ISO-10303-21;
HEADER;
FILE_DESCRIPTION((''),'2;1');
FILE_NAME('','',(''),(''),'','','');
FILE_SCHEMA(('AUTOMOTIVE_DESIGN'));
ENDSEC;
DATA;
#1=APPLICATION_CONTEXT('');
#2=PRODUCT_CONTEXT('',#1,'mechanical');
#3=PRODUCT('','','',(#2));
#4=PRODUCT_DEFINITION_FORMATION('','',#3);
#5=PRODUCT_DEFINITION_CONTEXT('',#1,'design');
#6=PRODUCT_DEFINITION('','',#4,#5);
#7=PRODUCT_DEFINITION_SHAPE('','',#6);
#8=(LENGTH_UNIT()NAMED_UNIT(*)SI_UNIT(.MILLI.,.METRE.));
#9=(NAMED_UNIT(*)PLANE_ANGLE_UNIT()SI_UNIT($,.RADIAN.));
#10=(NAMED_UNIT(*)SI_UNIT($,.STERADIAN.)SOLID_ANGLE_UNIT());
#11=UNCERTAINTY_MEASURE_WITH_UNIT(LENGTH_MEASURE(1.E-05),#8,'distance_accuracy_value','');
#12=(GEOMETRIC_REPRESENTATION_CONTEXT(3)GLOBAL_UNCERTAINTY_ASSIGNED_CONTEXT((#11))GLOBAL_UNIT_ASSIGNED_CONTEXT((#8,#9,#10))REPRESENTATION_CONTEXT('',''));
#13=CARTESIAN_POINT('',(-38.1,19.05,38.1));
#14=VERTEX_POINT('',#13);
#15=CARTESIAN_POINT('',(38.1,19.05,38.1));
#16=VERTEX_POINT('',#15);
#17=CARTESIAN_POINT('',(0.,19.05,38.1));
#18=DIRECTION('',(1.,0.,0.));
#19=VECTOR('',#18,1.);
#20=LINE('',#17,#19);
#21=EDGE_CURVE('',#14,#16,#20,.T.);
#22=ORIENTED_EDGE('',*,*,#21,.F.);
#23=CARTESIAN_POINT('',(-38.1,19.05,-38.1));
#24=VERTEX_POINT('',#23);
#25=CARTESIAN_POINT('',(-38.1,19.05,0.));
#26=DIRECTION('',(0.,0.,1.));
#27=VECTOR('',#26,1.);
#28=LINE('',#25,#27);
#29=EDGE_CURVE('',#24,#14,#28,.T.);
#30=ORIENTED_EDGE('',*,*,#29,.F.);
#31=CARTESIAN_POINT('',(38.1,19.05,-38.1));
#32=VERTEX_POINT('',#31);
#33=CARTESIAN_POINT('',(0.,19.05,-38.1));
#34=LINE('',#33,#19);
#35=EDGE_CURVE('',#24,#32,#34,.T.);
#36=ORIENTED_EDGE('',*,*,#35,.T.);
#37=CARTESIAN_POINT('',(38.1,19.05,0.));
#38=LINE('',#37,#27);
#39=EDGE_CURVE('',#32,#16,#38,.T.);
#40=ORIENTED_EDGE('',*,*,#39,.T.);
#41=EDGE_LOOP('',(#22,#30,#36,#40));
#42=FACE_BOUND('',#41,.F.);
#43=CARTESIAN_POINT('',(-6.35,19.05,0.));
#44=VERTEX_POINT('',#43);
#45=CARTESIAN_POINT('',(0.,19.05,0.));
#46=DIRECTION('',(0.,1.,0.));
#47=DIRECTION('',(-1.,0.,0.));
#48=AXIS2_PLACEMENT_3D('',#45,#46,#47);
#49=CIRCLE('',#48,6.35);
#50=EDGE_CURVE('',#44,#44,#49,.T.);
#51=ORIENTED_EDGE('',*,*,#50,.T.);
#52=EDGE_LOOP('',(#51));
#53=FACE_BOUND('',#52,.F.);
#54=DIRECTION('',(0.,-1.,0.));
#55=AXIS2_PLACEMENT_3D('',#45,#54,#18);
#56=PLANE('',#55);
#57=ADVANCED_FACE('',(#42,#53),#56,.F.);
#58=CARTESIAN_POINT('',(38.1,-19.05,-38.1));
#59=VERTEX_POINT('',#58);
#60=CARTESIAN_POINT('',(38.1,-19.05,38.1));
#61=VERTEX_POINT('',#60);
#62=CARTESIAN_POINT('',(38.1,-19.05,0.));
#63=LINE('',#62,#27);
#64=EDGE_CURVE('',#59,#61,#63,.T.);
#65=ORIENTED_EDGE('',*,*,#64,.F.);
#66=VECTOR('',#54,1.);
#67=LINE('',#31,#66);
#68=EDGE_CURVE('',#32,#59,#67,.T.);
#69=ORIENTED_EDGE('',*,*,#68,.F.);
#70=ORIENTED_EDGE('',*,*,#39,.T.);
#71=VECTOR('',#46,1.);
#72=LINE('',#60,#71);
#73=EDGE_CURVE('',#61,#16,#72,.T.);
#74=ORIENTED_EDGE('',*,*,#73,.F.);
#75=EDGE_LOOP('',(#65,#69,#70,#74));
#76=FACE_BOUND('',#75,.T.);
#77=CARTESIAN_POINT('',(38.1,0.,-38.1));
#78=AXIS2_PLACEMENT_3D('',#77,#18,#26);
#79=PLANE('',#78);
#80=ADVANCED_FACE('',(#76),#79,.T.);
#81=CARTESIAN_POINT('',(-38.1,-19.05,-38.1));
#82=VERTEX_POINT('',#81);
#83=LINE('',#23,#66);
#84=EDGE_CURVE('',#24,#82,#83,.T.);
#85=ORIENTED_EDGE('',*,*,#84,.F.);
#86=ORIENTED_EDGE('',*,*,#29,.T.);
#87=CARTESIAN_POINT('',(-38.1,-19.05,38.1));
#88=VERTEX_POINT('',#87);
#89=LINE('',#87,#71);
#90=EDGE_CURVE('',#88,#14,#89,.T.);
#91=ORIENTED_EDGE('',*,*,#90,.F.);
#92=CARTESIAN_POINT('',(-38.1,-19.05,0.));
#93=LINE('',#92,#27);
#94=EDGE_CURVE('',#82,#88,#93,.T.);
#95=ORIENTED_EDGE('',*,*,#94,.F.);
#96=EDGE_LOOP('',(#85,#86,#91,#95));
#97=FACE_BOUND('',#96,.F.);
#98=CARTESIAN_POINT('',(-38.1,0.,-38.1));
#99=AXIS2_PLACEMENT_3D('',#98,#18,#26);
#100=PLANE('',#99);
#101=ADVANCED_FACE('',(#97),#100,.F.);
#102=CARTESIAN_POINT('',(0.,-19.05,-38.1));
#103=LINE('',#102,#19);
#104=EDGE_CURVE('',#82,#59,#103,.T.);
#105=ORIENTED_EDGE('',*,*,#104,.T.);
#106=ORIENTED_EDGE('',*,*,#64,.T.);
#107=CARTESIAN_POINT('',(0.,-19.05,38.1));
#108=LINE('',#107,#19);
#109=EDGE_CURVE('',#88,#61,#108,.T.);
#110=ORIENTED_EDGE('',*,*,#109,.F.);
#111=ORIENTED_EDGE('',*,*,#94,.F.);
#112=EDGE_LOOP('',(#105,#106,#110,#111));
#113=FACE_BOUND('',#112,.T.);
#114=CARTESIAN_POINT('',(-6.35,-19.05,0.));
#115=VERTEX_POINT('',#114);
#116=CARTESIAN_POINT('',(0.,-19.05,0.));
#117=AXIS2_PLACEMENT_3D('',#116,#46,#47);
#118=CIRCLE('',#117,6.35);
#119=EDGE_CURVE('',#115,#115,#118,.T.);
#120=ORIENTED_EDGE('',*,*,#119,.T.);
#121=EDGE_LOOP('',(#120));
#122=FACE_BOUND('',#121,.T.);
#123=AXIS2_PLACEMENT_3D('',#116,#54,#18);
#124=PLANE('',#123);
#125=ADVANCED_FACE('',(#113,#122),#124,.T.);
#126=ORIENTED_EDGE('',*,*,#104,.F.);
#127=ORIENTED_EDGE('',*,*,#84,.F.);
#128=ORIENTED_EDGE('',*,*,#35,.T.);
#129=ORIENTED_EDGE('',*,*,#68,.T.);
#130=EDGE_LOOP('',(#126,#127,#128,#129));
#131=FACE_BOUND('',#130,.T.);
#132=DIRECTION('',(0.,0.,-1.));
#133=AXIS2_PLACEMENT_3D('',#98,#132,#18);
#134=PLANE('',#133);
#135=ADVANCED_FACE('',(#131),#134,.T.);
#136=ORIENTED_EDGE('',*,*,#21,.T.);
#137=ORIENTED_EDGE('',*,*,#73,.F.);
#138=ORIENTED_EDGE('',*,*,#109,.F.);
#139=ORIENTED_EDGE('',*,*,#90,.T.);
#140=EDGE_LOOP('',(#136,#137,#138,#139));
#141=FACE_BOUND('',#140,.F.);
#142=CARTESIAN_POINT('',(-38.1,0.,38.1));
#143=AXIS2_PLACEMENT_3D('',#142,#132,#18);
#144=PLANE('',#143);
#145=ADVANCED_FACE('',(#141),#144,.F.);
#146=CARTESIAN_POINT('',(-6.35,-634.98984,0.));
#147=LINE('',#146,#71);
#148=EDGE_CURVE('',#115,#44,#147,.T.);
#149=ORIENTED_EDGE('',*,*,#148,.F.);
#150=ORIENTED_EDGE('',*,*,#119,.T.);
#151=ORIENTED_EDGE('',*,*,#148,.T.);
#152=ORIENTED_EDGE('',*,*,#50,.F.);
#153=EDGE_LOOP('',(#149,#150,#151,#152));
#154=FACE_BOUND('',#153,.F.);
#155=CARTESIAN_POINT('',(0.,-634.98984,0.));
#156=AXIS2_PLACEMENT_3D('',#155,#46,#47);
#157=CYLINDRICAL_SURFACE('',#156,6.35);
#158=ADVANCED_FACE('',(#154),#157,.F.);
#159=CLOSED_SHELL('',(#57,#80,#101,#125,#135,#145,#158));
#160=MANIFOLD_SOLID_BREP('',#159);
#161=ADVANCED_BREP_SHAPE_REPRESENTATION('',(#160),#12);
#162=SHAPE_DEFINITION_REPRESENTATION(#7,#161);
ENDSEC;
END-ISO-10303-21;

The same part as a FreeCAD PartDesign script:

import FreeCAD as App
import Part
import Sketcher

V = App.Vector
Q = App.Units.Quantity


def add_polygon(sketch, points):
    """Adds a closed chain of lines whose ends are joined by coincident constraints."""
    first, n = sketch.GeometryCount, len(points)
    for a, b in zip(points, points[1:] + points[:1]):
        sketch.addGeometry(Part.LineSegment(App.Vector(*a, 0), App.Vector(*b, 0)), False)
    for i in range(n):
        sketch.addConstraint(Sketcher.Constraint("Coincident", first + i, 2, first + (i + 1) % n, 1))

doc = App.newDocument("Part")
body = doc.addObject("PartDesign::Body", "Body")

sketch1 = body.newObject("Sketcher::SketchObject", "Sketch")
sketch1.AttachmentSupport = (doc.getObject("XZ_Plane"), [""])
sketch1.MapMode = "FlatFace"
add_polygon(sketch1, [(-38, 38), (-38, -38), (38, -38), (38, 38)])
sketch1.addConstraint([
    Sketcher.Constraint("Vertical", 0),
    Sketcher.Constraint("Horizontal", 1),
    Sketcher.Constraint("Vertical", 2),
    Sketcher.Constraint("Horizontal", 3),
    Sketcher.Constraint("Symmetric", 0, 2, 2, 2, -1, 1),
    Sketcher.Constraint("Equal", 3, 0),
    Sketcher.Constraint("DistanceX", 1, 1, 1, 2, Q("3 in")),
])
pad1 = body.newObject("PartDesign::Pad", "Pad")
pad1.Profile = sketch1
pad1.Length = Q("1.5 in")
pad1.Midplane = True

sketch2 = body.newObject("Sketcher::SketchObject", "Sketch001")
sketch2.AttachmentSupport = (doc.getObject("XZ_Plane"), [""])
sketch2.MapMode = "FlatFace"
sketch2.AttachmentOffset = App.Placement(V(0, 0, 0.9996 * 25.4), App.Rotation())
sketch2.addGeometry(Part.Circle(V(0, 0, 0), V(0, 0, 1), 6), False)
sketch2.addConstraint([
    Sketcher.Constraint("Coincident", 0, 3, -1, 1),
    Sketcher.Constraint("Diameter", 0, Q("0.5 in")),
])
doc.recompute()
hole = body.newObject("PartDesign::Hole", "Hole")
hole.Profile = sketch2
hole.ThreadType = "None"
hole.Diameter = Q("0.5 in")
hole.DepthType = "Dimension"
hole.Depth = Q("24 in")
hole.DrillPoint = "Flat"

doc.recompute()
